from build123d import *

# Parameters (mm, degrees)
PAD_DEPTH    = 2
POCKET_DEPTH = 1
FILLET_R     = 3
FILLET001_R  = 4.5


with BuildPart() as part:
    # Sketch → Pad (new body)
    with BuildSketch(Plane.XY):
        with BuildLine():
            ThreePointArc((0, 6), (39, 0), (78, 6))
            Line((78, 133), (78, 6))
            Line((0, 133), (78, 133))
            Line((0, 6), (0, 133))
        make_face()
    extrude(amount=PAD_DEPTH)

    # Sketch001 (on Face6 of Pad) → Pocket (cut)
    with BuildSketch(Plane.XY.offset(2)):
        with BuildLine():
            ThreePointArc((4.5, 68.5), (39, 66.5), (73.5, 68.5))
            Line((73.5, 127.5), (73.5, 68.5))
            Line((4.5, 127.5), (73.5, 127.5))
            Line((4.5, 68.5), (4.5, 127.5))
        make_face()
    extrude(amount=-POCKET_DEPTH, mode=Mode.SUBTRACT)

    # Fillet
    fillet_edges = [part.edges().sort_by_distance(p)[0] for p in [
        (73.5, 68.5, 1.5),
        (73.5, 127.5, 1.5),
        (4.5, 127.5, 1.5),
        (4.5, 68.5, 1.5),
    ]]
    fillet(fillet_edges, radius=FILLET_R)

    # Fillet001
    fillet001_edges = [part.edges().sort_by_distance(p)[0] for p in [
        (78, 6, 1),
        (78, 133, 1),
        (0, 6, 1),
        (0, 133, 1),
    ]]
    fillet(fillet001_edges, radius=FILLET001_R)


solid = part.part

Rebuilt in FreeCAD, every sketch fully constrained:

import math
import FreeCAD as App
import Part
import Sketcher
from FreeCAD import Vector


def edges_at(feature, points):
    """Names of the edges that pass closest to the given points."""
    edges = feature.Shape.Edges
    near = lambda p: min(range(len(edges)), key=lambda i: edges[i].distToShape(Part.Vertex(*p))[0])
    return sorted({f"Edge{near(p) + 1}" for p in points})

doc = App.newDocument("Part")
body = doc.addObject("PartDesign::Body", "Body")

sketch1 = body.newObject("Sketcher::SketchObject", "Sketch")
sketch1.AttachmentSupport = (doc.getObject("XY_Plane"), [""])
sketch1.MapMode = "FlatFace"
sketch1.addGeometry(Part.ArcOfCircle(Part.Circle(Vector(39, 130, 0), Vector(0, 0, 1), 130), math.radians(-107), math.radians(-73)), False)
sketch1.addGeometry(Part.LineSegment(Vector(78, 6, 0), Vector(78, 133, 0)), False)
sketch1.addGeometry(Part.LineSegment(Vector(78, 133, 0), Vector(0, 133, 0)), False)
sketch1.addGeometry(Part.LineSegment(Vector(0, 133, 0), Vector(0, 6, 0)), False)
sketch1.addConstraint(Sketcher.Constraint("Coincident", 0, 2, 1, 1))
sketch1.addConstraint(Sketcher.Constraint("Coincident", 1, 2, 2, 1))
sketch1.addConstraint(Sketcher.Constraint("Coincident", 2, 2, 3, 1))
sketch1.addConstraint(Sketcher.Constraint("Coincident", 3, 2, 0, 1))
sketch1.addConstraint(Sketcher.Constraint("Vertical", 1))
sketch1.addConstraint(Sketcher.Constraint("Horizontal", 2))
sketch1.addConstraint(Sketcher.Constraint("Vertical", 3))
sketch1.addConstraint(Sketcher.Constraint("PointOnObject", 2, 2, -2))
sketch1.addConstraint(Sketcher.Constraint("Horizontal", 0, 2, 3, 2))
sketch1.addConstraint(Sketcher.Constraint("DistanceX", 2, 2, 2, 1, 78.0))
sketch1.addConstraint(Sketcher.Constraint("DistanceY", 1, 1, 1, 2, 127.0))
sketch1.addConstraint(Sketcher.Constraint("Radius", 0, 129.75))
sketch1.addConstraint(Sketcher.Constraint("DistanceY", -1, 1, 0, 2, 6.0))
pad1 = body.newObject("PartDesign::Pad", "Pad")
pad1.Profile = sketch1
pad1.Length = 2

sketch2 = body.newObject("Sketcher::SketchObject", "Sketch001")
sketch2.AttachmentSupport = (doc.getObject("XY_Plane"), [""])
sketch2.MapMode = "FlatFace"
sketch2.AttachmentOffset = App.Placement(Vector(0, 0, 2), App.Rotation())
sketch2.addGeometry(Part.ArcOfCircle(Part.Circle(Vector(39, 365, 0), Vector(0, 0, 1), 299), math.radians(-96.64), math.radians(-83.36)), False)
sketch2.addGeometry(Part.LineSegment(Vector(74, 68, 0), Vector(74, 128, 0)), False)
sketch2.addGeometry(Part.LineSegment(Vector(74, 128, 0), Vector(4, 128, 0)), False)
sketch2.addGeometry(Part.LineSegment(Vector(4, 128, 0), Vector(4, 68, 0)), False)
sketch2.addConstraint(Sketcher.Constraint("Coincident", 0, 2, 1, 1))
sketch2.addConstraint(Sketcher.Constraint("Coincident", 1, 2, 2, 1))
sketch2.addConstraint(Sketcher.Constraint("Coincident", 2, 2, 3, 1))
sketch2.addConstraint(Sketcher.Constraint("Coincident", 3, 2, 0, 1))
sketch2.addConstraint(Sketcher.Constraint("Vertical", 1))
sketch2.addConstraint(Sketcher.Constraint("Horizontal", 2))
sketch2.addConstraint(Sketcher.Constraint("Vertical", 3))
sketch2.addConstraint(Sketcher.Constraint("Horizontal", 0, 2, 3, 2))
sketch2.addConstraint(Sketcher.Constraint("DistanceX", 2, 2, 2, 1, 69.0))
sketch2.addConstraint(Sketcher.Constraint("DistanceY", 1, 1, 1, 2, 59.0))
sketch2.addConstraint(Sketcher.Constraint("DistanceX", -1, 1, 0, 3, 39.0))
sketch2.addConstraint(Sketcher.Constraint("DistanceY", -1, 1, 0, 2, 68.5))
sketch2.addConstraint(Sketcher.Constraint("Radius", 0, 298.5625))
pocket1 = body.newObject("PartDesign::Pocket", "Pocket")
pocket1.Profile = sketch2
pocket1.Length = 1
doc.recompute()

fillet = body.newObject("PartDesign::Fillet", "Fillet")
fillet.Base = (pocket1, edges_at(pocket1, [
    (73.5, 68.5, 1.5),
    (73.5, 127.5, 1.5),
    (4.5, 127.5, 1.5),
    (4.5, 68.5, 1.5),
]))
fillet.Radius = 3
doc.recompute()

fillet2 = body.newObject("PartDesign::Fillet", "Fillet001")
fillet2.Base = (fillet, edges_at(fillet, [
    (78, 6, 1),
    (78, 133, 1),
    (0, 6, 1),
    (0, 133, 1),
]))
fillet2.Radius = 4.5

doc.recompute()
